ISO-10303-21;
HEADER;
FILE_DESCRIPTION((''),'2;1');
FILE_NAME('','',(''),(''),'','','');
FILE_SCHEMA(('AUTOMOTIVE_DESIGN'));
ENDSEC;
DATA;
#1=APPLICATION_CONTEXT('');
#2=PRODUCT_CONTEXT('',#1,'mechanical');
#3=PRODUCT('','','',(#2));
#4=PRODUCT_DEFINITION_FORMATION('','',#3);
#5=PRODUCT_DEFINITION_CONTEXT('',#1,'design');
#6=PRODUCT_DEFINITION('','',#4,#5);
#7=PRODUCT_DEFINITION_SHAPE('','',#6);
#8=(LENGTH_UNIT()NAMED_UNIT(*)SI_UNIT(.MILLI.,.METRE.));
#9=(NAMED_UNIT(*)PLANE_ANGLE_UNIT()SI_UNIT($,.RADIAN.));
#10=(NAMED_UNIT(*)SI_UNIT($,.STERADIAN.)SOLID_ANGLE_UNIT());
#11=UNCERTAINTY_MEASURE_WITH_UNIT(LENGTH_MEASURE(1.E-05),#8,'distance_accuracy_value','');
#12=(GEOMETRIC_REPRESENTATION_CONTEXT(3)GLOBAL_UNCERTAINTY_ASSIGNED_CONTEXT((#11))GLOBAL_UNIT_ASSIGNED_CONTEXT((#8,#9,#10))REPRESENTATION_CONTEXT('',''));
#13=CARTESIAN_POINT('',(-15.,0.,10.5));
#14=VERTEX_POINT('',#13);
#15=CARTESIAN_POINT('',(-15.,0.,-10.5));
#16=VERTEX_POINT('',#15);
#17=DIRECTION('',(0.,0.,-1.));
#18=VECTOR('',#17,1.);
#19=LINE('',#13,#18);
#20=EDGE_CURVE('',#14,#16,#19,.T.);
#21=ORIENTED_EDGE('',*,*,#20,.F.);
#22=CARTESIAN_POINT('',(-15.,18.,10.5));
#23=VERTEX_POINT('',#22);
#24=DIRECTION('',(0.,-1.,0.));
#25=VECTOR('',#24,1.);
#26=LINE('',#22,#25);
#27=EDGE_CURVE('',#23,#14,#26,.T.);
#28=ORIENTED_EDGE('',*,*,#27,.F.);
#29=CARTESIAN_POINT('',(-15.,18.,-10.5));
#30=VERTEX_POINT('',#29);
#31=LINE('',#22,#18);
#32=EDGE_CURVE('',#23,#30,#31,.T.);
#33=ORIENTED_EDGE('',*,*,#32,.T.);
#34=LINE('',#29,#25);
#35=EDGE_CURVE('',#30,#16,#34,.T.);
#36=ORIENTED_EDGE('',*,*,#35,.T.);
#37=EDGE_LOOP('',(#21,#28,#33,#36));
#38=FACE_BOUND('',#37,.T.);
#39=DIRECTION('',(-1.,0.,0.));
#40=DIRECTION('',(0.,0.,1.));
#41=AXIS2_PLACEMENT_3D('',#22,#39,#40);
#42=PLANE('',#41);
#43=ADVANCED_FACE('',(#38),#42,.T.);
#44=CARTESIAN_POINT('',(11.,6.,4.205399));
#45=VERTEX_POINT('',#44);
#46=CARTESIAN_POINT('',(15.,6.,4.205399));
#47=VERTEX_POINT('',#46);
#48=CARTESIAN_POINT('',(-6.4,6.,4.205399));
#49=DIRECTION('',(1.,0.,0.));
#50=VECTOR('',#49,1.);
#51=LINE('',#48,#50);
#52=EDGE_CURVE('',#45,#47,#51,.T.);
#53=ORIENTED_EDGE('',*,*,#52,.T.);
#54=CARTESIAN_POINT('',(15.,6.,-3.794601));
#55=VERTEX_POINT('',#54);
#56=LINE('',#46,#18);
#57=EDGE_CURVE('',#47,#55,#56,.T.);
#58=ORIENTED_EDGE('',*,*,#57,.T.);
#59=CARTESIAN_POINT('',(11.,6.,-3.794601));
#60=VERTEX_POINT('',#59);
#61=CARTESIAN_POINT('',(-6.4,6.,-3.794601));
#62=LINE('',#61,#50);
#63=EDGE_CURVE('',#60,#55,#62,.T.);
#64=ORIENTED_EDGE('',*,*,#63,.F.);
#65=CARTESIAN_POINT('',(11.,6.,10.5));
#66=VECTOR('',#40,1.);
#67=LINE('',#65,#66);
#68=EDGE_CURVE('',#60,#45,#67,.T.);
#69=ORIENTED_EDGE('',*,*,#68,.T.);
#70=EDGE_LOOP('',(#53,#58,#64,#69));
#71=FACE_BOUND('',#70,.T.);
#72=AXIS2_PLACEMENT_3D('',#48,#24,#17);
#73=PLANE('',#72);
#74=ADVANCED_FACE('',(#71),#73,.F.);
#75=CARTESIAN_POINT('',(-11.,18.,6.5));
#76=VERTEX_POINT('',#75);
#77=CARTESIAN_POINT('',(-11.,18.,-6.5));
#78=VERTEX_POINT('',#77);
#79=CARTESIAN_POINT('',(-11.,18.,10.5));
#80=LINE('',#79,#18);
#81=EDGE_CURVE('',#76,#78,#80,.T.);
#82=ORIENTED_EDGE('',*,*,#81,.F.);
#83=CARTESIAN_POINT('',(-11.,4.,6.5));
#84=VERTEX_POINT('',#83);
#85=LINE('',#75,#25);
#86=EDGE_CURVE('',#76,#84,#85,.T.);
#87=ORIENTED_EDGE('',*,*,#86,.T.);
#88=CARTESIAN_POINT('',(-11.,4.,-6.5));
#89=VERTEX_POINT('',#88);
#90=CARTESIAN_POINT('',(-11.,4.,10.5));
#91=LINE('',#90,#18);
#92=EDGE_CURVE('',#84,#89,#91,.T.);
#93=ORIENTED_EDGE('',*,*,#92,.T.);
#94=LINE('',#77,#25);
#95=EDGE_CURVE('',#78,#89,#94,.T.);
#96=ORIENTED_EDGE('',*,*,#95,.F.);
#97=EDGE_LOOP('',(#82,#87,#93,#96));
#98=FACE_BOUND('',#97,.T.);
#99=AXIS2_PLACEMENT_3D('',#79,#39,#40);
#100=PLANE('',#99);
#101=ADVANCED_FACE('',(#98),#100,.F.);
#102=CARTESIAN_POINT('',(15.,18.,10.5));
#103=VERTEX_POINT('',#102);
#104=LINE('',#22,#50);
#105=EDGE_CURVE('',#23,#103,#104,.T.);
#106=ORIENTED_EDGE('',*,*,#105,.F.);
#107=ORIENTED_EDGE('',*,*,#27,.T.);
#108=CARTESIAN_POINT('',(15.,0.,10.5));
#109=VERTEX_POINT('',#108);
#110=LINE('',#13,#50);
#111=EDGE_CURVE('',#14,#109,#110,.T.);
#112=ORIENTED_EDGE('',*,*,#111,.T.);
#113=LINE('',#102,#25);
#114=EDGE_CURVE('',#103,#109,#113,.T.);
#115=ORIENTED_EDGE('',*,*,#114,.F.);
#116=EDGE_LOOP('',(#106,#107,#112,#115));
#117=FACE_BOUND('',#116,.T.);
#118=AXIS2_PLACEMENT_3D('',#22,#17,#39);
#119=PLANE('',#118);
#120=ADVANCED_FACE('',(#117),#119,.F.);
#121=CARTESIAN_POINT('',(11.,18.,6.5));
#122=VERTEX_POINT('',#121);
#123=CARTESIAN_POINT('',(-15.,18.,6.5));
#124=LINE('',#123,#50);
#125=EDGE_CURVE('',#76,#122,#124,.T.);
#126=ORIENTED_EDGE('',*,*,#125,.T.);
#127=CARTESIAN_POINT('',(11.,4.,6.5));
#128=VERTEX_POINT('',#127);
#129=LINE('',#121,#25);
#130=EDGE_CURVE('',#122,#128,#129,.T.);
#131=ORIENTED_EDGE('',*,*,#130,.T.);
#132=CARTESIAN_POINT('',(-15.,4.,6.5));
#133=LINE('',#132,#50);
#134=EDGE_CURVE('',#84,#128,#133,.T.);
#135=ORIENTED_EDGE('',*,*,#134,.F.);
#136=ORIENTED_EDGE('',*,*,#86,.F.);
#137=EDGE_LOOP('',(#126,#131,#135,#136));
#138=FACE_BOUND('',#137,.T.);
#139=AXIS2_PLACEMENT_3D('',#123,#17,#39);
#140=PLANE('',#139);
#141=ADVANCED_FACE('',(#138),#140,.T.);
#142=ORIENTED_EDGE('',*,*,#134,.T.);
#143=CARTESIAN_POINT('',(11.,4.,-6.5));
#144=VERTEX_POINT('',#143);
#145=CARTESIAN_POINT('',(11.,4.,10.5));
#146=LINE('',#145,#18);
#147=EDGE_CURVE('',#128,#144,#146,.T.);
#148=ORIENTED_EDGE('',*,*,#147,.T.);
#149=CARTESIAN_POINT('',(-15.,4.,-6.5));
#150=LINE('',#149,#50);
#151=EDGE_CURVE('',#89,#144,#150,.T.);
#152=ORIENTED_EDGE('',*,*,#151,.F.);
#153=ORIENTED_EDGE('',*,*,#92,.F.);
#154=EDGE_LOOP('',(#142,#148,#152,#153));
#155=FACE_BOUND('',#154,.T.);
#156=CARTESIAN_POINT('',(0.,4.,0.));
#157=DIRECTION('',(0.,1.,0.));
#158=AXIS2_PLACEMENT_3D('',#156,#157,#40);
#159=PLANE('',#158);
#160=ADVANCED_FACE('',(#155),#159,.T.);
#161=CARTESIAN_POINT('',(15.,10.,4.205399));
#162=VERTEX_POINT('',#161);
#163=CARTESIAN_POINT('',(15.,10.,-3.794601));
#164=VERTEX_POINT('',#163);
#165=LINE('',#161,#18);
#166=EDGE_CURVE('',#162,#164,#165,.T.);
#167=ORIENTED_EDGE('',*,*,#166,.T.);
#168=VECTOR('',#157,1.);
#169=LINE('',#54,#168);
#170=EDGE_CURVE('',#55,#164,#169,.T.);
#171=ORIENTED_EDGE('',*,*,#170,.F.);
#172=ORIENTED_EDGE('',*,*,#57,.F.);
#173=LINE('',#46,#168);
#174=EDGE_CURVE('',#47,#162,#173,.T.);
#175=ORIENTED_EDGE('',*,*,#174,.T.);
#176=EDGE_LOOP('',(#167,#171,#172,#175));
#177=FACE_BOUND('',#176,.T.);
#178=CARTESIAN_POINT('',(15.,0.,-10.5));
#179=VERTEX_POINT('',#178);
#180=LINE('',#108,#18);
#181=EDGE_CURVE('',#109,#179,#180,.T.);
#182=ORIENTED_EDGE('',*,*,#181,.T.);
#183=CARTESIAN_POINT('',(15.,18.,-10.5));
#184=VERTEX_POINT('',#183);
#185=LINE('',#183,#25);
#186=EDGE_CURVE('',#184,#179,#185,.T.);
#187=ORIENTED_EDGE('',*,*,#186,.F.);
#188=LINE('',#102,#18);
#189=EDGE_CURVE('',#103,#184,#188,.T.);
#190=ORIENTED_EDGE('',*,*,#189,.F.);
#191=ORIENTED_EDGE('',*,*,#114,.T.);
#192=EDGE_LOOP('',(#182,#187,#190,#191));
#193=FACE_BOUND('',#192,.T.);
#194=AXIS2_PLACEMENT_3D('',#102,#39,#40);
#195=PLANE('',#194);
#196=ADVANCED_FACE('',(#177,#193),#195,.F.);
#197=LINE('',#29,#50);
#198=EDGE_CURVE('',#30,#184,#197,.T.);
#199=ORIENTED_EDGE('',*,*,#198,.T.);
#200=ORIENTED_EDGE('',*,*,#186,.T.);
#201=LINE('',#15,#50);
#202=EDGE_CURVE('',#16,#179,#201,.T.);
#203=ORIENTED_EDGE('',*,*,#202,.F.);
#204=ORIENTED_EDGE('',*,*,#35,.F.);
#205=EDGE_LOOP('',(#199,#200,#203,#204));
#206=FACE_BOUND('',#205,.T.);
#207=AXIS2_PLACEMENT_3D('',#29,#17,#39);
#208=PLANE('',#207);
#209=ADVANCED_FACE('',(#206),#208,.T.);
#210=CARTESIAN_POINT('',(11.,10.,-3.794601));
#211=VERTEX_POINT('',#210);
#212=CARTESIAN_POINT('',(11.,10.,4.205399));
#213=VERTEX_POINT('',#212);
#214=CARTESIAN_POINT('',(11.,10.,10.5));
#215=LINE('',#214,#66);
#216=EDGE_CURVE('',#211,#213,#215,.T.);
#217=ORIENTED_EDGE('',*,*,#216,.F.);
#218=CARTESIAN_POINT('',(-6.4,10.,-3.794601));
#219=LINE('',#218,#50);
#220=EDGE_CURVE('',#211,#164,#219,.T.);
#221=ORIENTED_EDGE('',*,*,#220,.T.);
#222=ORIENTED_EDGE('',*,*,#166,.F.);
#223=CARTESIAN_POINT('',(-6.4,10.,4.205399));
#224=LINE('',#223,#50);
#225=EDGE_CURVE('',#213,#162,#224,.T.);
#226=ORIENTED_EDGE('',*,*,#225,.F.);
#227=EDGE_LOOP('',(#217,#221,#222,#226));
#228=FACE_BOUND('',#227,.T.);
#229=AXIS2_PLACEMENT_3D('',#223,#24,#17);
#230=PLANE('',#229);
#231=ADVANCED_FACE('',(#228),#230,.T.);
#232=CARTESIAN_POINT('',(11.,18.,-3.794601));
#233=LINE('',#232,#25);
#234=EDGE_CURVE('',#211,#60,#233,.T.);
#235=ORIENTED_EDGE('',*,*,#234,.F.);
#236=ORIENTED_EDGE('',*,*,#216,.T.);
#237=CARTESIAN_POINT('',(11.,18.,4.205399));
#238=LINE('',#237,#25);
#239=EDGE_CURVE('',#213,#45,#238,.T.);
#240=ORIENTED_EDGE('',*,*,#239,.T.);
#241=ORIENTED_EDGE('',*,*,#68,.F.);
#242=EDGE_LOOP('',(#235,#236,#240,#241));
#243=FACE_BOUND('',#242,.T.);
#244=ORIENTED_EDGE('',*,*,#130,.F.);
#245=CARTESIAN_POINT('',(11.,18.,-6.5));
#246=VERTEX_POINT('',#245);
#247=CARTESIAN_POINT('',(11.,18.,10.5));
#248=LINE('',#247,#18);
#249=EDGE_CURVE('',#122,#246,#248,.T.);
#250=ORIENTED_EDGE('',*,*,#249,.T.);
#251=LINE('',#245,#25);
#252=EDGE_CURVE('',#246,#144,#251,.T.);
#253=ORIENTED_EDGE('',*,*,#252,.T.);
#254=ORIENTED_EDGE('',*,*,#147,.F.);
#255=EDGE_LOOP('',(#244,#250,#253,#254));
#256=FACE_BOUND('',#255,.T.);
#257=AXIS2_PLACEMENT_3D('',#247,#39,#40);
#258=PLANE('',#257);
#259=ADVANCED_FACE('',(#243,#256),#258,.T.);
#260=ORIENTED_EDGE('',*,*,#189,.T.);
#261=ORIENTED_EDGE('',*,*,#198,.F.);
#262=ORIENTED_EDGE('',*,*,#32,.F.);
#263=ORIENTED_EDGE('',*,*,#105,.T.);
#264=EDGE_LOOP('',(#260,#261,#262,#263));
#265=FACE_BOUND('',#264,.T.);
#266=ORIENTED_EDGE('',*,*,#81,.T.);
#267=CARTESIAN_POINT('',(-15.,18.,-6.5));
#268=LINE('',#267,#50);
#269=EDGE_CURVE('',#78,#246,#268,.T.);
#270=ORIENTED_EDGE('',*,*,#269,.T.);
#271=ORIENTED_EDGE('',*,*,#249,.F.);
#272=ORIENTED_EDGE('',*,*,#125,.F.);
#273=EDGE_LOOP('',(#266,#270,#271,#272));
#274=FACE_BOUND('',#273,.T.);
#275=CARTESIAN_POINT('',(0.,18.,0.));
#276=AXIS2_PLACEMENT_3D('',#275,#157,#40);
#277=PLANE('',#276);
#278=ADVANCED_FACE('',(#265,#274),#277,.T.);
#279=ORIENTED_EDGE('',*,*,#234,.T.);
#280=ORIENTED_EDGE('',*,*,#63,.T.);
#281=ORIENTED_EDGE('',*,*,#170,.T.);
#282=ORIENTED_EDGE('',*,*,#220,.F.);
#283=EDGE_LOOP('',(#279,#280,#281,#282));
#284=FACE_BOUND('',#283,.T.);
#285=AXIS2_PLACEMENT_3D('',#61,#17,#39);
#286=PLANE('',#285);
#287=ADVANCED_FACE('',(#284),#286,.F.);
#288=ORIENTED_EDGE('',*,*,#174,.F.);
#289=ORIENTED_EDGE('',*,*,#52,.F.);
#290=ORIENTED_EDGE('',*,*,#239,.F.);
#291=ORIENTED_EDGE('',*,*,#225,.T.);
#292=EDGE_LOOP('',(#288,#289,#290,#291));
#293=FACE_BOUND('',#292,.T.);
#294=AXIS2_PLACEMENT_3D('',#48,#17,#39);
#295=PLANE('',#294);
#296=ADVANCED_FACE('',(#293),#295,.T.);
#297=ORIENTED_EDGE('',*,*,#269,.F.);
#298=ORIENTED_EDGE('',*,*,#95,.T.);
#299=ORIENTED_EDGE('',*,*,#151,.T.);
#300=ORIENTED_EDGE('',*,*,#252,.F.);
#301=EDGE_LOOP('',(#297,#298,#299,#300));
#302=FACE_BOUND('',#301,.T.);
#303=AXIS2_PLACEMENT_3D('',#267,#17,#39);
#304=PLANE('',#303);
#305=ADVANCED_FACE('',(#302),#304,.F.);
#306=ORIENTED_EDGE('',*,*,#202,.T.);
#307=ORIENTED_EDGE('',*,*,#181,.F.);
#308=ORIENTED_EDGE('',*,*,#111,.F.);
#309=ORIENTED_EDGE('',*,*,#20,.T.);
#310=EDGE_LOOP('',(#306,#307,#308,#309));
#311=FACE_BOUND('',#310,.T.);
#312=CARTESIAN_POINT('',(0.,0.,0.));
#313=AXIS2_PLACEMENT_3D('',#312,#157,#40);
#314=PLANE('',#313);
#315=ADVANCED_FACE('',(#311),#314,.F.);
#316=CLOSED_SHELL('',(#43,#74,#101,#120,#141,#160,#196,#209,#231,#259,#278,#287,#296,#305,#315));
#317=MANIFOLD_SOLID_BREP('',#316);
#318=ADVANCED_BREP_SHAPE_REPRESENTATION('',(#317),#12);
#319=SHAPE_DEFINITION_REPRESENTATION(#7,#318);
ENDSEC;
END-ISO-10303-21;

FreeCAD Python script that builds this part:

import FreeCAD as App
import Part
import Sketcher
Q = App.Units.Quantity


def faces_at(feature, points):
    """Names of the faces that lie closest to the given points."""
    faces = feature.Shape.Faces
    near = lambda p: min(range(len(faces)), key=lambda i: faces[i].distToShape(Part.Vertex(*p))[0])
    return sorted({f"Face{near(p) + 1}" for p in points})

doc = App.newDocument("Part")
params = doc.addObject("Spreadsheet::Sheet", "Params")
for row, (alias, value) in enumerate([
    ("sketch1_width", "30 mm"),
    ("sketch1_height", "21 mm"),
    ("pad1_length", "18 mm"),
    ("thickness_wall", "4 mm"),
    ("sketch2_width", "4 mm"),
    ("sketch2_height", "8 mm"),
    ("pocket1_length", "21.4 mm"),
], start=1):
    params.set(f"A{row}", alias)
    params.set(f"B{row}", "=" + value)
    params.setAlias(f"B{row}", alias)

body = doc.addObject("PartDesign::Body", "Body")

sketch1 = body.newObject("Sketcher::SketchObject", "Sketch")
sketch1.AttachmentSupport = (doc.getObject("XZ_Plane"), [""])
sketch1.MapMode = "FlatFace"
sketch1.addGeometry(Part.LineSegment(App.Vector(-15, -10, 0), App.Vector(-15, 10, 0)), False)
sketch1.addGeometry(Part.LineSegment(App.Vector(-15, 10, 0), App.Vector(15, 10, 0)), False)
sketch1.addGeometry(Part.LineSegment(App.Vector(15, 10, 0), App.Vector(15, -10, 0)), False)
sketch1.addGeometry(Part.LineSegment(App.Vector(15, -10, 0), App.Vector(-15, -10, 0)), False)
sketch1.addConstraint(Sketcher.Constraint("Coincident", 0, 2, 1, 1))
sketch1.addConstraint(Sketcher.Constraint("Coincident", 1, 2, 2, 1))
sketch1.addConstraint(Sketcher.Constraint("Coincident", 2, 2, 3, 1))
sketch1.addConstraint(Sketcher.Constraint("Coincident", 3, 2, 0, 1))
sketch1.addConstraint(Sketcher.Constraint("Vertical", 0))
sketch1.addConstraint(Sketcher.Constraint("Horizontal", 1))
sketch1.addConstraint(Sketcher.Constraint("Vertical", 2))
sketch1.addConstraint(Sketcher.Constraint("Horizontal", 3))
sketch1.addConstraint(Sketcher.Constraint("Symmetric", 0, 2, 2, 2, -1, 1))
sketch1.addConstraint(Sketcher.Constraint("DistanceX", 1, 1, 1, 2, Q("30 mm")))
sketch1.addConstraint(Sketcher.Constraint("DistanceY", 0, 1, 0, 2, Q("21 mm")))
sketch1.setExpression("Constraints[9]", "Params.sketch1_width")
sketch1.setExpression("Constraints[10]", "Params.sketch1_height")
pad1 = body.newObject("PartDesign::Pad", "Pad")
pad1.Profile = sketch1
pad1.setExpression("Length", "Params.pad1_length")
pad1.Reversed = True
doc.recompute()

thickness = body.newObject("PartDesign::Thickness", "Thickness")
thickness.Base = (pad1, faces_at(pad1, [(0, 18, 0)]))
thickness.setExpression("Value", "Params.thickness_wall")
thickness.Reversed = True
thickness.Join = "Intersection"

sketch2 = body.newObject("Sketcher::SketchObject", "Sketch001")
sketch2.AttachmentSupport = (doc.getObject("YZ_Plane"), [""])
sketch2.MapMode = "FlatFace"
sketch2.AttachmentOffset = App.Placement(App.Vector(0, 0, 15), App.Rotation())
sketch2.addGeometry(Part.LineSegment(App.Vector(10, 4.2, 0), App.Vector(6, 4.2, 0)), False)
sketch2.addGeometry(Part.LineSegment(App.Vector(6, 4.2, 0), App.Vector(6, -3.8, 0)), False)
sketch2.addGeometry(Part.LineSegment(App.Vector(6, -3.8, 0), App.Vector(10, -3.8, 0)), False)
sketch2.addGeometry(Part.LineSegment(App.Vector(10, -3.8, 0), App.Vector(10, 4.2, 0)), False)
sketch2.addConstraint(Sketcher.Constraint("Coincident", 0, 2, 1, 1))
sketch2.addConstraint(Sketcher.Constraint("Coincident", 1, 2, 2, 1))
sketch2.addConstraint(Sketcher.Constraint("Coincident", 2, 2, 3, 1))
sketch2.addConstraint(Sketcher.Constraint("Coincident", 3, 2, 0, 1))
sketch2.addConstraint(Sketcher.Constraint("Horizontal", 0))
sketch2.addConstraint(Sketcher.Constraint("Vertical", 1))
sketch2.addConstraint(Sketcher.Constraint("Horizontal", 2))
sketch2.addConstraint(Sketcher.Constraint("Vertical", 3))
sketch2.addConstraint(Sketcher.Constraint("DistanceX", 0, 2, 0, 1, Q("4 mm")))
sketch2.addConstraint(Sketcher.Constraint("DistanceY", 1, 2, 1, 1, Q("8 mm")))
sketch2.addConstraint(Sketcher.Constraint("DistanceX", -1, 1, 0, 2, Q("6 mm")))
sketch2.addConstraint(Sketcher.Constraint("DistanceY", -1, 1, 0, 2, Q("4.205399 mm")))
sketch2.setExpression("Constraints[8]", "Params.sketch2_width")
sketch2.setExpression("Constraints[9]", "Params.sketch2_height")
pocket1 = body.newObject("PartDesign::Pocket", "Pocket")
pocket1.Profile = sketch2
pocket1.setExpression("Length", "Params.pocket1_length")

doc.recompute()
